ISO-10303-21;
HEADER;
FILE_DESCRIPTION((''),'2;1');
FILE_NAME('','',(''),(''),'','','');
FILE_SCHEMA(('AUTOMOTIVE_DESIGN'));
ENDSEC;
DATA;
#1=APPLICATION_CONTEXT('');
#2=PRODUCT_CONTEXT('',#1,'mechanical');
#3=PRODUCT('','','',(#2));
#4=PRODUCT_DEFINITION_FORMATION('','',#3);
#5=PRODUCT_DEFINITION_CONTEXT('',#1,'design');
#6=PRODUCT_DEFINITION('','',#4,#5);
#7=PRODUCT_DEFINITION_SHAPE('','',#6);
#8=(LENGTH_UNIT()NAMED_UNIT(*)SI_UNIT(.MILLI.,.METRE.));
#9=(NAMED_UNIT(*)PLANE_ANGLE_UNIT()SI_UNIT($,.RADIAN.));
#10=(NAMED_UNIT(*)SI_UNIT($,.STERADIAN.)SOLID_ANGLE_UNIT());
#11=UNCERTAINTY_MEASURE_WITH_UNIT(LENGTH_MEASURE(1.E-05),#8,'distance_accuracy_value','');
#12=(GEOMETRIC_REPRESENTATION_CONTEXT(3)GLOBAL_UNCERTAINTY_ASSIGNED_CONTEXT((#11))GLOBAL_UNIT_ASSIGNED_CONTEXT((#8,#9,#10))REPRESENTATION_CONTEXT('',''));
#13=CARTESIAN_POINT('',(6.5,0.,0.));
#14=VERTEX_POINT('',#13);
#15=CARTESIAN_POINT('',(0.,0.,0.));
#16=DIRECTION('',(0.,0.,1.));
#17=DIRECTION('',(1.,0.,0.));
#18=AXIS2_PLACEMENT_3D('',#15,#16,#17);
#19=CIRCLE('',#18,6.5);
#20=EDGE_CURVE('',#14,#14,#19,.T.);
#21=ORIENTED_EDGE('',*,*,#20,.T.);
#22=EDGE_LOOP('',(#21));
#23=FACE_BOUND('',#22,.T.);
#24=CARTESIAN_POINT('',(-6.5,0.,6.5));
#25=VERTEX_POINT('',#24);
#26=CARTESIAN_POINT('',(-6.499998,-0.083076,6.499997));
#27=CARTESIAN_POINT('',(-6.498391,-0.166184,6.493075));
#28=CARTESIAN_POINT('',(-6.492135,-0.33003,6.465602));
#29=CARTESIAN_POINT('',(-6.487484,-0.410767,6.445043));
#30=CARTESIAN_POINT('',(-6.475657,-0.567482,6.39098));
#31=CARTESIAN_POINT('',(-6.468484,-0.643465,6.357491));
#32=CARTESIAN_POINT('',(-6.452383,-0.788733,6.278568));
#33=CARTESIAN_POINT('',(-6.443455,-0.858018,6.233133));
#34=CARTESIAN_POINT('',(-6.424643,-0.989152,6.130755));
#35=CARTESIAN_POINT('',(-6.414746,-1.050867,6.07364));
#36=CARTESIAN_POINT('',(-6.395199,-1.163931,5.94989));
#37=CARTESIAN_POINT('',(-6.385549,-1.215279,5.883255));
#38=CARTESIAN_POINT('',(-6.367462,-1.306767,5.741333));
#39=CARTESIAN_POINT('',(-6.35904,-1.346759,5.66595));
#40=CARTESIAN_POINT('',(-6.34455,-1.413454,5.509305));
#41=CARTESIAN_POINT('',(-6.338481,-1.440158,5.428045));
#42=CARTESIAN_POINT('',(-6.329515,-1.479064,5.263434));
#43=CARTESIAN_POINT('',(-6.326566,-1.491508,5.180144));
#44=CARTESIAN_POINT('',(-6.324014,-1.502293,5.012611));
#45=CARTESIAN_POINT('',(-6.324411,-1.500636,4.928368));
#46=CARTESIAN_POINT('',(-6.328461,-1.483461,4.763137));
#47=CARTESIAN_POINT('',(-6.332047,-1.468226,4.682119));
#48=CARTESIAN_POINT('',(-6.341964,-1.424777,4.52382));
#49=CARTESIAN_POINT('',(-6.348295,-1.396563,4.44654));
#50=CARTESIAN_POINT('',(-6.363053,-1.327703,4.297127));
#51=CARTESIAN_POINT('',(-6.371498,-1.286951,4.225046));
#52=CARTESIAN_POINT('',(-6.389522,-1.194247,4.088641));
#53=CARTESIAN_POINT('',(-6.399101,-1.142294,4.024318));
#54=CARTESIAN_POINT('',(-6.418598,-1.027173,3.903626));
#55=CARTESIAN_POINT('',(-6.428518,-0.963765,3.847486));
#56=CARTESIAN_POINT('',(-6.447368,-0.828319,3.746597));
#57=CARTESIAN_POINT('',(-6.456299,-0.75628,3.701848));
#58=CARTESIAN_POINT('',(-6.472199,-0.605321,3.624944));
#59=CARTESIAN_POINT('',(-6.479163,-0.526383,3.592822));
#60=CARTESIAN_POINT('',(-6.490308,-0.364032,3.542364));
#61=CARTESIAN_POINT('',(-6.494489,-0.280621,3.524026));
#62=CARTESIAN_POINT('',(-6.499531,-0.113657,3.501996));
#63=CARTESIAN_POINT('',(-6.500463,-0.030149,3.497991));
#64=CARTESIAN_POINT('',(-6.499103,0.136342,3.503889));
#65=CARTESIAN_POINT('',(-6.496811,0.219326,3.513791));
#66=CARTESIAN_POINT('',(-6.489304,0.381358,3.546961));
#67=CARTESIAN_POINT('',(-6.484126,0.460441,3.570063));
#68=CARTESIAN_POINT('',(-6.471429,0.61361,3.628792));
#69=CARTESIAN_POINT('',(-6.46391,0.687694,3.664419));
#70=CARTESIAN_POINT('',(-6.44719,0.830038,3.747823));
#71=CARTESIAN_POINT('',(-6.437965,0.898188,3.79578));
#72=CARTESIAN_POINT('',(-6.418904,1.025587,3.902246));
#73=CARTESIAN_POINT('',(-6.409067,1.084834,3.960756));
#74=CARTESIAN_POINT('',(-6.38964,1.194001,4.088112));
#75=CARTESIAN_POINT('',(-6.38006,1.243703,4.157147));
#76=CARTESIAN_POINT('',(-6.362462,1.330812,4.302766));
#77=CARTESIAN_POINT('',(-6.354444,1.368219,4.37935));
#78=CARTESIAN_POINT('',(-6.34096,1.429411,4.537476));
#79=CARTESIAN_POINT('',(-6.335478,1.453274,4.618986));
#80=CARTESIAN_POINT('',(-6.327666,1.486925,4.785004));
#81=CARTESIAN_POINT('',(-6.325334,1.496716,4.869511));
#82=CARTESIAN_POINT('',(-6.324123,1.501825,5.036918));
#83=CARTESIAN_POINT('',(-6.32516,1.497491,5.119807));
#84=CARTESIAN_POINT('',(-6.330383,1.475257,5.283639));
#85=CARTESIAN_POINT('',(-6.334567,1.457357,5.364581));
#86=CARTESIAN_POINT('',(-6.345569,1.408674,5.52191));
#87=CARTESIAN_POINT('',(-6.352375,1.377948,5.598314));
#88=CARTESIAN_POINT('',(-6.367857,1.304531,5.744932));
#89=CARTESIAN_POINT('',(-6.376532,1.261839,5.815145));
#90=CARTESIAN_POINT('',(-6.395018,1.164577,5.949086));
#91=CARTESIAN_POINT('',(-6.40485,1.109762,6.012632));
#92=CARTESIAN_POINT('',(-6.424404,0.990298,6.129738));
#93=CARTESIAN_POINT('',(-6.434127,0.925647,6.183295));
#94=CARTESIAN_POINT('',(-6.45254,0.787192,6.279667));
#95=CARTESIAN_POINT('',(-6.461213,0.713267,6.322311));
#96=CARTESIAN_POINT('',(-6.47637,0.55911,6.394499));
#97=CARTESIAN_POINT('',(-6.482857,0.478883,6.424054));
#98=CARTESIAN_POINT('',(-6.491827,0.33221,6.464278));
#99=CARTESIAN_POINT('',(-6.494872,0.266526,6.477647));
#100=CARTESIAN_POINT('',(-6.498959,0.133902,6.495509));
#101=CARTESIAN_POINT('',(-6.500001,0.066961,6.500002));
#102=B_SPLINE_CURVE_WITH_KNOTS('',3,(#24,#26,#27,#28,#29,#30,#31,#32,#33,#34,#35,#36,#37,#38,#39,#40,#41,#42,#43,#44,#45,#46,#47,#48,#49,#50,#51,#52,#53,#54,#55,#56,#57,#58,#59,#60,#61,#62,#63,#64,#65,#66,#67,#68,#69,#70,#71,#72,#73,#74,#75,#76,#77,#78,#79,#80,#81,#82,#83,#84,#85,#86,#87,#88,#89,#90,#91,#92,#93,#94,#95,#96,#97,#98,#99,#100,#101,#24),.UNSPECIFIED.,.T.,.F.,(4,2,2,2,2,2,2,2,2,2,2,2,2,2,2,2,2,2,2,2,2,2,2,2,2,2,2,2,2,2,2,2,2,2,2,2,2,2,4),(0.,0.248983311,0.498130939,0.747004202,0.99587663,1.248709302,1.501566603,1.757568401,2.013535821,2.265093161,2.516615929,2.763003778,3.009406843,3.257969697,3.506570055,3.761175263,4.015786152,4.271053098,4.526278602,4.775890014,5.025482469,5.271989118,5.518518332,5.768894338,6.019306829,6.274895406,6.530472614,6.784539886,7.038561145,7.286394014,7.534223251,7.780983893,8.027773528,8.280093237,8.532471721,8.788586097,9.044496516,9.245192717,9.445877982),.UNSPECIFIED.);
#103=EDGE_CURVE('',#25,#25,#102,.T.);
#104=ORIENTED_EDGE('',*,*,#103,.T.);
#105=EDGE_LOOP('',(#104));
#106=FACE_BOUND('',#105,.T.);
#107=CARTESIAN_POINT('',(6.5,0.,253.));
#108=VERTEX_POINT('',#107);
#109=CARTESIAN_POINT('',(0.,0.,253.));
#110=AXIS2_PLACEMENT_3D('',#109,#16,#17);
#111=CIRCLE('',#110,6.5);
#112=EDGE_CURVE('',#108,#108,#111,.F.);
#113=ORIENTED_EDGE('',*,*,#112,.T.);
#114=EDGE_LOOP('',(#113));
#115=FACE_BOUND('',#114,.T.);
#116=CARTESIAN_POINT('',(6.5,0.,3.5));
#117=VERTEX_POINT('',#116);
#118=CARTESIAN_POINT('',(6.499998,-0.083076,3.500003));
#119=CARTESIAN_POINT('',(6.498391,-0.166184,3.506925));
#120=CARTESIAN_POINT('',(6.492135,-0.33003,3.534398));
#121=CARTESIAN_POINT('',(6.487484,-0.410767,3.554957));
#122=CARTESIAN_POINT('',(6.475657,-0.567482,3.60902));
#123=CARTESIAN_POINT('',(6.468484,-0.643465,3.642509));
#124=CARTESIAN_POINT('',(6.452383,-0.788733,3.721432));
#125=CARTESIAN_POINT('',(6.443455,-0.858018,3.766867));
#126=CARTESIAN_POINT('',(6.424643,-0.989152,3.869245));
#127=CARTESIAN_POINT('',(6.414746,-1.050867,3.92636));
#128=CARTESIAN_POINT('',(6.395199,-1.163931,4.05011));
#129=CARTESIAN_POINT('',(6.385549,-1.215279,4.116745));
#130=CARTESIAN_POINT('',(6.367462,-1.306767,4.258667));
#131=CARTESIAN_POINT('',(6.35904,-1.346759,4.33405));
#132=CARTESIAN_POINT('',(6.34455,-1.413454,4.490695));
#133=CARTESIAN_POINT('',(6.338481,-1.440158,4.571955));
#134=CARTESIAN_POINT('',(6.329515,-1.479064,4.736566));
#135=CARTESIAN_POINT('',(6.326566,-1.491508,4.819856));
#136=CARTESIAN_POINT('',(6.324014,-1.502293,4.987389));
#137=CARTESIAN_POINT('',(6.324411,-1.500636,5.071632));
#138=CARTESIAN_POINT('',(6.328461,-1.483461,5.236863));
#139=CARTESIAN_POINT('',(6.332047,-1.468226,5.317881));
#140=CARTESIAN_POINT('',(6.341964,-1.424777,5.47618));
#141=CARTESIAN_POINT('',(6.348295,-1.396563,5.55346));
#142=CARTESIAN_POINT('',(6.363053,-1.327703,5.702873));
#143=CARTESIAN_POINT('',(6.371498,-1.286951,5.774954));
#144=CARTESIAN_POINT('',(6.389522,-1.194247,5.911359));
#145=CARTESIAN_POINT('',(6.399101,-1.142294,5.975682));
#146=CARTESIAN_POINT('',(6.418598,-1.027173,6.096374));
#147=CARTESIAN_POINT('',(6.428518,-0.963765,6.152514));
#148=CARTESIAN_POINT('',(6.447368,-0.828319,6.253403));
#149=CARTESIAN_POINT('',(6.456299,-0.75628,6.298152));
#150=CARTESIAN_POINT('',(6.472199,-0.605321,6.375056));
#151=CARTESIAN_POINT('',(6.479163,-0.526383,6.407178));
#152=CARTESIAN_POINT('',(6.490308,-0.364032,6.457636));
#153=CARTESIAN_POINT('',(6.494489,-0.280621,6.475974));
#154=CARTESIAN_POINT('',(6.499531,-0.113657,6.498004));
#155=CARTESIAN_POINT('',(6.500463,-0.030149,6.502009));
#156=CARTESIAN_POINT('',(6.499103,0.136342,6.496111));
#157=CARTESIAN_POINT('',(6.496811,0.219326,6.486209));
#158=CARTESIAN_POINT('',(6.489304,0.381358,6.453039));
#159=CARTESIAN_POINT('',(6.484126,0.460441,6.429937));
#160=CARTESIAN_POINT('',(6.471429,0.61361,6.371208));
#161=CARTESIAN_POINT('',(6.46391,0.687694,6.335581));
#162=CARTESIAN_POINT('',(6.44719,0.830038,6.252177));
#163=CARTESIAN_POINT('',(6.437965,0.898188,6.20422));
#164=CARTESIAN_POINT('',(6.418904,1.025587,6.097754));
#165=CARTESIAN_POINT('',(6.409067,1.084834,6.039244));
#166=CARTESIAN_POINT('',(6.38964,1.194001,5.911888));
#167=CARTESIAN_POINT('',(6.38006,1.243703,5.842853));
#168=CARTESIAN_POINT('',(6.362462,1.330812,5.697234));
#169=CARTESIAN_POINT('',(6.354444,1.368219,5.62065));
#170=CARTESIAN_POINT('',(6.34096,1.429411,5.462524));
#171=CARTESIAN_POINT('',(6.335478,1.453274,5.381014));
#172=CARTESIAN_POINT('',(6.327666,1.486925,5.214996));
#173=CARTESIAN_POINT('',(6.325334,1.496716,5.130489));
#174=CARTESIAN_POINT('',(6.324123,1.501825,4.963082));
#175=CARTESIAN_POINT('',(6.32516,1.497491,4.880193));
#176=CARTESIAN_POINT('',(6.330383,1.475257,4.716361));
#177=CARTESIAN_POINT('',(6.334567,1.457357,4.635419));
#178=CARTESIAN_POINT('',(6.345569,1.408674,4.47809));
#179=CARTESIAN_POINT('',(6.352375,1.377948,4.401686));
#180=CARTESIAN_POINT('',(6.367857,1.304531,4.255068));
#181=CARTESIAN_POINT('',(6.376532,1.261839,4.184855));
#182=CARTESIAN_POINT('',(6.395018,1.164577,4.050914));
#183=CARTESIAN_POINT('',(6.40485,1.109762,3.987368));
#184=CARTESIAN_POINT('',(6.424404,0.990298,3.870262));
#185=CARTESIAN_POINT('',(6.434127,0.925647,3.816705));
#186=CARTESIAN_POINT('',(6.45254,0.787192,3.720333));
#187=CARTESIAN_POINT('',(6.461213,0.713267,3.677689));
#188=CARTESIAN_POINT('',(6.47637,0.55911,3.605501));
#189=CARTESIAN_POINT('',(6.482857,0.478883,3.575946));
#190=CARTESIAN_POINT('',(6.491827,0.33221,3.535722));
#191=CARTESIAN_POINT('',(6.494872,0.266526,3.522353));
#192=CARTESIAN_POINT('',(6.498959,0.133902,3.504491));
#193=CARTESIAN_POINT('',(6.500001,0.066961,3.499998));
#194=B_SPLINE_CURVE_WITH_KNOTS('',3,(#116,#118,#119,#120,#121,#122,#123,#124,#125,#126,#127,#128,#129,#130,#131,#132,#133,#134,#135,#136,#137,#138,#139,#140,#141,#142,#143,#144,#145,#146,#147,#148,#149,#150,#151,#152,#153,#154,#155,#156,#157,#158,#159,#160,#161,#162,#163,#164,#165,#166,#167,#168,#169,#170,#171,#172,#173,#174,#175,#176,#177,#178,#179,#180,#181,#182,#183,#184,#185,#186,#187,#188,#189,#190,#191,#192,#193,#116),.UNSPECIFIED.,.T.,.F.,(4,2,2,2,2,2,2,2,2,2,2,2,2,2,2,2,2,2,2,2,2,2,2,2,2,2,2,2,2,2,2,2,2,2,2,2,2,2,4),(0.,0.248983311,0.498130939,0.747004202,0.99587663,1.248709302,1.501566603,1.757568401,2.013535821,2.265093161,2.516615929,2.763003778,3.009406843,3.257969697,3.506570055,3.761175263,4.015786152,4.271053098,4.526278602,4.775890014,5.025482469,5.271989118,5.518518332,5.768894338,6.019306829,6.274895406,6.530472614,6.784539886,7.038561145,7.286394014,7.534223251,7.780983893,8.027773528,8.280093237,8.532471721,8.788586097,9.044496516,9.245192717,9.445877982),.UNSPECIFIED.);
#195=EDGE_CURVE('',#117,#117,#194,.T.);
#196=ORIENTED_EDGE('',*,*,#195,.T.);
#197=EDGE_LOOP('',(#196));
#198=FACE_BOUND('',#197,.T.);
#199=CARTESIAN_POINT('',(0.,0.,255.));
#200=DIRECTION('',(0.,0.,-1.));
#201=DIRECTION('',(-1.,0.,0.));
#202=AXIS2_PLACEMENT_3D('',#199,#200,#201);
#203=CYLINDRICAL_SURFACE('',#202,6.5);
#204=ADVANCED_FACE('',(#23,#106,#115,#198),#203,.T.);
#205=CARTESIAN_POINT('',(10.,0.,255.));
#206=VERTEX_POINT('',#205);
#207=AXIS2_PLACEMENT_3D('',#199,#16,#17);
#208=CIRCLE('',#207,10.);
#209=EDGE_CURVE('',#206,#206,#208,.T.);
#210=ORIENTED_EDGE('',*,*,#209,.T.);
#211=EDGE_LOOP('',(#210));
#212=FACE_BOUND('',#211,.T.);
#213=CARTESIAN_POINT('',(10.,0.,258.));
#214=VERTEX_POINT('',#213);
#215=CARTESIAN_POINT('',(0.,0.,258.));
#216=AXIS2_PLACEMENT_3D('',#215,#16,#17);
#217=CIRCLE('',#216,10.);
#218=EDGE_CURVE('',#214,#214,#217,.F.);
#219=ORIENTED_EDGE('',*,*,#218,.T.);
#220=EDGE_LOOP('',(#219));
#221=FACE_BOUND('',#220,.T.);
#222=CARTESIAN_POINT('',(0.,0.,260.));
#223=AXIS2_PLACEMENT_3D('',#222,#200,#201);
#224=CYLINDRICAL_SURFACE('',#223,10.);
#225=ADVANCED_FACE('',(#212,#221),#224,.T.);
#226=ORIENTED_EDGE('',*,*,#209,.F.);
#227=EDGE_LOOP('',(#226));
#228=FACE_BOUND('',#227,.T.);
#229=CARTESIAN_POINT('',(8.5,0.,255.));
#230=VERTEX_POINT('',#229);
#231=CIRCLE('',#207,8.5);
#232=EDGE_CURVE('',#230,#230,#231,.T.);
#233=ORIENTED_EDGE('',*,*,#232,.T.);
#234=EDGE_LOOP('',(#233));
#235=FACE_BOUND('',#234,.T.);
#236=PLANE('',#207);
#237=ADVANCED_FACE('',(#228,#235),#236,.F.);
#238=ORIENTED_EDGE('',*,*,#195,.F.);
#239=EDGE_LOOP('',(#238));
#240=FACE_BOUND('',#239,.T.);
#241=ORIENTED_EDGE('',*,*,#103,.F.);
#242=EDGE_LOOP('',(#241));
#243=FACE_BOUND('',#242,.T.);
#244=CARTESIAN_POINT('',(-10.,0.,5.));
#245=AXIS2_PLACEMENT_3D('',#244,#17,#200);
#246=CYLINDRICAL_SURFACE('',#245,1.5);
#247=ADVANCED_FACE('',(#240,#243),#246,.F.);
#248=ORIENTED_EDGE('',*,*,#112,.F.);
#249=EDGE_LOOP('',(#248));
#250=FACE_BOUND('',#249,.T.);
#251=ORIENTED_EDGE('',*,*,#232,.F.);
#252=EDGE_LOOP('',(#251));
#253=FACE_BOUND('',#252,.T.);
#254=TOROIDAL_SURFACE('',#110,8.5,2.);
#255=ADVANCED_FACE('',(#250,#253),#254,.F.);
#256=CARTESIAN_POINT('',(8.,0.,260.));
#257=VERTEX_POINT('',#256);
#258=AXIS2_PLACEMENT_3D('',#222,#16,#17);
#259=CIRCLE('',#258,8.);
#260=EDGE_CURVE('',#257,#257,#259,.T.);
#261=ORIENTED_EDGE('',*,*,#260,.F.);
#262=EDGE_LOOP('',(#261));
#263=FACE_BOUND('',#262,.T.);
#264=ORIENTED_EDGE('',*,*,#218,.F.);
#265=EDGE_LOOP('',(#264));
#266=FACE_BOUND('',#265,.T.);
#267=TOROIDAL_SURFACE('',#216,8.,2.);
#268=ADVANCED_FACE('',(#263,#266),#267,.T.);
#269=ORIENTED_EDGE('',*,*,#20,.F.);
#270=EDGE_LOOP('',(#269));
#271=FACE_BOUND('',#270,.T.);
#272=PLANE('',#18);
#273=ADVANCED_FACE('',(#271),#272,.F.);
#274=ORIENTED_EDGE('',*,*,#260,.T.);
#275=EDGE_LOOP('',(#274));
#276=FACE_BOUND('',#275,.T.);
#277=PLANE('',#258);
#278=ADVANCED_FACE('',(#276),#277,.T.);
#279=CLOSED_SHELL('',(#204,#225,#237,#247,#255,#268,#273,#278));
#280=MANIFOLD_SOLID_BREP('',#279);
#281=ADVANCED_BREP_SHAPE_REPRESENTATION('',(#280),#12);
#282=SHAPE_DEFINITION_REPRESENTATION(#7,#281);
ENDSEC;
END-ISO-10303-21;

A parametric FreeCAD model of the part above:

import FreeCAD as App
import Part
import Sketcher
from FreeCAD import Vector


def edges_at(feature, points):
    """Names of the edges that pass closest to the given points."""
    edges = feature.Shape.Edges
    near = lambda p: min(range(len(edges)), key=lambda i: edges[i].distToShape(Part.Vertex(*p))[0])
    return sorted({f"Edge{near(p) + 1}" for p in points})

doc = App.newDocument("Part")
body = doc.addObject("PartDesign::Body", "Body")

sketch1 = body.newObject("Sketcher::SketchObject", "Sketch")
sketch1.AttachmentSupport = (doc.getObject("XY_Plane"), [""])
sketch1.MapMode = "FlatFace"
sketch1.addGeometry(Part.Circle(Vector(0, 0, 0), Vector(0, 0, 1), 6), False)
sketch1.addConstraint([
    Sketcher.Constraint("Coincident", 0, 3, -1, 1),
    Sketcher.Constraint("Diameter", 0, 13.0),
])
pad1 = body.newObject("PartDesign::Pad", "Pad")
pad1.Profile = sketch1
pad1.Length = 255

sketch2 = body.newObject("Sketcher::SketchObject", "Sketch001")
sketch2.AttachmentSupport = (doc.getObject("XY_Plane"), [""])
sketch2.MapMode = "FlatFace"
sketch2.AttachmentOffset = App.Placement(Vector(0, 0, 255), App.Rotation())
sketch2.addGeometry(Part.Circle(Vector(0, 0, 0), Vector(0, 0, 1), 10), False)
sketch2.addConstraint([
    Sketcher.Constraint("Coincident", 0, 3, -1, 1),
    Sketcher.Constraint("Diameter", 0, 20.0),
])
pad2 = body.newObject("PartDesign::Pad", "Pad001")
pad2.Profile = sketch2
pad2.Length = 5
doc.recompute()

fillet = body.newObject("PartDesign::Fillet", "Fillet")
fillet.Base = (pad2, edges_at(pad2, [(-6.5, 0, 255), (-10, 0, 260)]))
fillet.Radius = 2

sketch3 = body.newObject("Sketcher::SketchObject", "Sketch002")
sketch3.AttachmentSupport = (doc.getObject("YZ_Plane"), [""])
sketch3.MapMode = "FlatFace"
sketch3.addGeometry(Part.Circle(Vector(0, 5, 0), Vector(0, 0, 1), 1.5), False)
sketch3.addConstraint([
    Sketcher.Constraint("PointOnObject", 0, 3, -2),
    Sketcher.Constraint("Diameter", 0, 3.0),
    Sketcher.Constraint("DistanceY", -1, 1, 0, 3, 5.0),
])
pocket1 = body.newObject("PartDesign::Pocket", "Pocket")
pocket1.Profile = sketch3
pocket1.Type = "ThroughAll"
pocket1.Midplane = True

doc.recompute()
